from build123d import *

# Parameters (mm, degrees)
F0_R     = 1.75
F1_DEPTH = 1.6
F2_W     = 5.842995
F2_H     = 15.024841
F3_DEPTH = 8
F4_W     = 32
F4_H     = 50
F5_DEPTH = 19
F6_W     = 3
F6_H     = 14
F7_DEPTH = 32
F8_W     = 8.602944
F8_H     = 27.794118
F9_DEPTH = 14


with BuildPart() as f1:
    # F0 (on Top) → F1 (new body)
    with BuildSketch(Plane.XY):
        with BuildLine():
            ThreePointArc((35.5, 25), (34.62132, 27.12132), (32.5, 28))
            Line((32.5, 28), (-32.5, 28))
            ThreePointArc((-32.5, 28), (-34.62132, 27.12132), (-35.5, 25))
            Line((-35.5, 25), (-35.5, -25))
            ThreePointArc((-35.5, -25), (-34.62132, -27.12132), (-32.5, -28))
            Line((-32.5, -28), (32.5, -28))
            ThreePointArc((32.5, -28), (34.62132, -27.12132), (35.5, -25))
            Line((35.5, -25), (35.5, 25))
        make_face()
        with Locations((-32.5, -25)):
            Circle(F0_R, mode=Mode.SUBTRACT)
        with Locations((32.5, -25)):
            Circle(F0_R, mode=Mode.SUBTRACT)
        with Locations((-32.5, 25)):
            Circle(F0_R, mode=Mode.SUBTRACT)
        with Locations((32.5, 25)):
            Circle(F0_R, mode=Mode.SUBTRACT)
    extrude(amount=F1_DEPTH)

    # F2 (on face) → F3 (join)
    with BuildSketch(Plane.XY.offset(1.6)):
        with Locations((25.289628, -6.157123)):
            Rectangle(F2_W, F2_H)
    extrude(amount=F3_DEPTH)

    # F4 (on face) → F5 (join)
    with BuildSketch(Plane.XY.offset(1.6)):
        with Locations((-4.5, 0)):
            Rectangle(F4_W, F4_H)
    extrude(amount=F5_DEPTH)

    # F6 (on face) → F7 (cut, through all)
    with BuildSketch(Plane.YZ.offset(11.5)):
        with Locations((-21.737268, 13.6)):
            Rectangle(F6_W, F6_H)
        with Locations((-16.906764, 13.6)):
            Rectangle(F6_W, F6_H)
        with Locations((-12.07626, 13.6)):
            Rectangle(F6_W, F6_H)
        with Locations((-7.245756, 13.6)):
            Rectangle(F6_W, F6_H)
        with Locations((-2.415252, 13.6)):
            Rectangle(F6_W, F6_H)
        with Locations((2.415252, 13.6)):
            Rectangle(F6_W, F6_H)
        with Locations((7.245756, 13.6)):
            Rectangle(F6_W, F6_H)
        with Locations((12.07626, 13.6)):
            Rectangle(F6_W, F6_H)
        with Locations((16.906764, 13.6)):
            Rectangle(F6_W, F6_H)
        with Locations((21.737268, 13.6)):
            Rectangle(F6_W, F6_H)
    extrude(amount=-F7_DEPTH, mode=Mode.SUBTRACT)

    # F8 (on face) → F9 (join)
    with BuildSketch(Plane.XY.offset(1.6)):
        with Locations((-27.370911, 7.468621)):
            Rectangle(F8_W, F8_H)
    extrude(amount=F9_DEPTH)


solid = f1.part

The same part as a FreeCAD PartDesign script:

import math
import FreeCAD as App
import Part
import Sketcher

V = App.Vector
Q = App.Units.Quantity

doc = App.newDocument("Part")
body = doc.addObject("PartDesign::Body", "Body")

sketch1 = doc.addObject("Sketcher::SketchObject", "Sketch")
body.addObject(sketch1)
sketch1.AttachmentSupport = (doc.XY_Plane, [""])
sketch1.MapMode = "FlatFace"
sketch1.addGeometry([
    Part.ArcOfCircle(Part.Circle(V(32.5, 25, 0), V(0, 0, 1), 3), math.radians(0), math.radians(90)),
    Part.LineSegment(V(32.5, 28, 0), V(-32.5, 28, 0)),
    Part.ArcOfCircle(Part.Circle(V(-32.5, 25, 0), V(0, 0, 1), 3), math.radians(90), math.radians(180)),
    Part.LineSegment(V(-35.5, 25, 0), V(-35.5, -25, 0)),
    Part.ArcOfCircle(Part.Circle(V(-32.5, -25, 0), V(0, 0, 1), 3), math.radians(-180), math.radians(-90)),
    Part.LineSegment(V(-32.5, -28, 0), V(32.5, -28, 0)),
    Part.ArcOfCircle(Part.Circle(V(32.5, -25, 0), V(0, 0, 1), 3), math.radians(-90), math.radians(0)),
    Part.LineSegment(V(35.5, -25, 0), V(35.5, 25, 0)),
    Part.Circle(V(-32.5, -25, 0), V(0, 0, 1), 1.8),
    Part.Circle(V(32.5, -25, 0), V(0, 0, 1), 1.8),
    Part.Circle(V(-32.5, 25, 0), V(0, 0, 1), 1.8),
    Part.Circle(V(32.5, 25, 0), V(0, 0, 1), 1.8),
], False)
sketch1.addConstraint([
    Sketcher.Constraint("Tangent", 0, 2, 1, 1),
    Sketcher.Constraint("Tangent", 1, 2, 2, 1),
    Sketcher.Constraint("Tangent", 2, 2, 3, 1),
    Sketcher.Constraint("Tangent", 3, 2, 4, 1),
    Sketcher.Constraint("Tangent", 4, 2, 5, 1),
    Sketcher.Constraint("Tangent", 5, 2, 6, 1),
    Sketcher.Constraint("Tangent", 6, 2, 7, 1),
    Sketcher.Constraint("Tangent", 7, 2, 0, 1),
    Sketcher.Constraint("Horizontal", 1),
    Sketcher.Constraint("Vertical", 3),
    Sketcher.Constraint("Horizontal", 5),
    Sketcher.Constraint("Vertical", 7),
    Sketcher.Constraint("Coincident", 8, 3, 4, 3),
    Sketcher.Constraint("Coincident", 9, 3, 6, 3),
    Sketcher.Constraint("Coincident", 10, 3, 2, 3),
    Sketcher.Constraint("Coincident", 11, 3, 0, 3),
    Sketcher.Constraint("Equal", 0, 2),
    Sketcher.Constraint("Equal", 2, 4),
    Sketcher.Constraint("Equal", 4, 6),
    Sketcher.Constraint("Equal", 8, 9),
    Sketcher.Constraint("Equal", 9, 10),
    Sketcher.Constraint("Equal", 10, 11),
    Sketcher.Constraint("Symmetric", 0, 3, 4, 3, -1, 1),
    Sketcher.Constraint("Radius", 0, Q("3.000001 mm")),
    Sketcher.Constraint("Diameter", 8, Q("3.5 mm")),
    Sketcher.Constraint("DistanceX", 1, 2, 1, 1, Q("65 mm")),
    Sketcher.Constraint("DistanceY", 3, 2, 3, 1, Q("50 mm")),
])
pad1 = doc.addObject("PartDesign::Pad", "Pad")
body.addObject(pad1)
pad1.Profile = sketch1
pad1.Length = 1.6

sketch2 = doc.addObject("Sketcher::SketchObject", "Sketch001")
body.addObject(sketch2)
sketch2.AttachmentSupport = (doc.XY_Plane, [""])
sketch2.MapMode = "FlatFace"
sketch2.AttachmentOffset = App.Placement(V(0, 0, 1.6), App.Rotation())
sketch2.addGeometry([
    Part.LineSegment(V(22, 1, 0), V(22, -14, 0)),
    Part.LineSegment(V(22, -14, 0), V(28, -14, 0)),
    Part.LineSegment(V(28, -14, 0), V(28, 1, 0)),
    Part.LineSegment(V(28, 1, 0), V(22, 1, 0)),
], False)
sketch2.addConstraint([
    Sketcher.Constraint("Coincident", 0, 2, 1, 1),
    Sketcher.Constraint("Coincident", 1, 2, 2, 1),
    Sketcher.Constraint("Coincident", 2, 2, 3, 1),
    Sketcher.Constraint("Coincident", 3, 2, 0, 1),
    Sketcher.Constraint("Vertical", 0),
    Sketcher.Constraint("Horizontal", 1),
    Sketcher.Constraint("Vertical", 2),
    Sketcher.Constraint("Horizontal", 3),
    Sketcher.Constraint("DistanceY", 0, 2, 0, 1, Q("15.024841 mm")),
    Sketcher.Constraint("DistanceX", 1, 1, 1, 2, Q("5.842995 mm")),
    Sketcher.Constraint("DistanceX", -1, 1, 0, 2, Q("22.36813 mm")),
    Sketcher.Constraint("DistanceY", 0, 2, -1, 1, Q("13.669543 mm")),
])
pad2 = doc.addObject("PartDesign::Pad", "Pad001")
body.addObject(pad2)
pad2.Profile = sketch2
pad2.Length = 8

sketch3 = doc.addObject("Sketcher::SketchObject", "Sketch002")
body.addObject(sketch3)
sketch3.AttachmentSupport = (doc.XY_Plane, [""])
sketch3.MapMode = "FlatFace"
sketch3.AttachmentOffset = App.Placement(V(0, 0, 1.6), App.Rotation())
sketch3.addGeometry([
    Part.LineSegment(V(-20, 25, 0), V(-20, -25, 0)),
    Part.LineSegment(V(-20, -25, 0), V(12, -25, 0)),
    Part.LineSegment(V(12, -25, 0), V(12, 25, 0)),
    Part.LineSegment(V(12, 25, 0), V(-20, 25, 0)),
], False)
sketch3.addConstraint([
    Sketcher.Constraint("Coincident", 0, 2, 1, 1),
    Sketcher.Constraint("Coincident", 1, 2, 2, 1),
    Sketcher.Constraint("Coincident", 2, 2, 3, 1),
    Sketcher.Constraint("Coincident", 3, 2, 0, 1),
    Sketcher.Constraint("Vertical", 0),
    Sketcher.Constraint("Horizontal", 1),
    Sketcher.Constraint("Vertical", 2),
    Sketcher.Constraint("Horizontal", 3),
    Sketcher.Constraint("DistanceX", 1, 1, 1, 2, Q("32 mm")),
    Sketcher.Constraint("DistanceY", 0, 2, 0, 1, Q("50 mm")),
    Sketcher.Constraint("DistanceY", 0, 2, -1, 1, Q("25 mm")),
    Sketcher.Constraint("DistanceX", 0, 2, -1, 1, Q("20.5 mm")),
])
pad3 = doc.addObject("PartDesign::Pad", "Pad002")
body.addObject(pad3)
pad3.Profile = sketch3
pad3.Length = 19

sketch4 = doc.addObject("Sketcher::SketchObject", "Sketch003")
body.addObject(sketch4)
sketch4.AttachmentSupport = (doc.YZ_Plane, [""])
sketch4.MapMode = "FlatFace"
sketch4.AttachmentOffset = App.Placement(V(0, 0, 11.5), App.Rotation())
sketch4.addGeometry([
    Part.LineSegment(V(-23.2, 20.6, 0), V(-23.2, 6.6, 0)),
    Part.LineSegment(V(-23.2, 6.6, 0), V(-20.2, 6.6, 0)),
    Part.LineSegment(V(-20.2, 6.6, 0), V(-20.2, 20.6, 0)),
    Part.LineSegment(V(-20.2, 20.6, 0), V(-23.2, 20.6, 0)),
    Part.LineSegment(V(-18.4, 20.6, 0), V(-18.4, 6.6, 0)),
    Part.LineSegment(V(-18.4, 6.6, 0), V(-15.4, 6.6, 0)),
    Part.LineSegment(V(-15.4, 6.6, 0), V(-15.4, 20.6, 0)),
    Part.LineSegment(V(-15.4, 20.6, 0), V(-18.4, 20.6, 0)),
    Part.LineSegment(V(-13.6, 20.6, 0), V(-13.6, 6.6, 0)),
    Part.LineSegment(V(-13.6, 6.6, 0), V(-10.6, 6.6, 0)),
    Part.LineSegment(V(-10.6, 6.6, 0), V(-10.6, 20.6, 0)),
    Part.LineSegment(V(-10.6, 20.6, 0), V(-13.6, 20.6, 0)),
    Part.LineSegment(V(-8.7, 20.6, 0), V(-8.7, 6.6, 0)),
    Part.LineSegment(V(-8.7, 6.6, 0), V(-5.7, 6.6, 0)),
    Part.LineSegment(V(-5.7, 6.6, 0), V(-5.7, 20.6, 0)),
    Part.LineSegment(V(-5.7, 20.6, 0), V(-8.7, 20.6, 0)),
    Part.LineSegment(V(-3.9, 20.6, 0), V(-3.9, 6.6, 0)),
    Part.LineSegment(V(-3.9, 6.6, 0), V(-0.9, 6.6, 0)),
    Part.LineSegment(V(-0.9, 6.6, 0), V(-0.9, 20.6, 0)),
    Part.LineSegment(V(-0.9, 20.6, 0), V(-3.9, 20.6, 0)),
    Part.LineSegment(V(0.9, 20.6, 0), V(0.9, 6.6, 0)),
    Part.LineSegment(V(0.9, 6.6, 0), V(3.9, 6.6, 0)),
    Part.LineSegment(V(3.9, 6.6, 0), V(3.9, 20.6, 0)),
    Part.LineSegment(V(3.9, 20.6, 0), V(0.9, 20.6, 0)),
    Part.LineSegment(V(5.7, 20.6, 0), V(5.7, 6.6, 0)),
    Part.LineSegment(V(5.7, 6.6, 0), V(8.7, 6.6, 0)),
    Part.LineSegment(V(8.7, 6.6, 0), V(8.7, 20.6, 0)),
    Part.LineSegment(V(8.7, 20.6, 0), V(5.7, 20.6, 0)),
    Part.LineSegment(V(10.6, 20.6, 0), V(10.6, 6.6, 0)),
    Part.LineSegment(V(10.6, 6.6, 0), V(13.6, 6.6, 0)),
    Part.LineSegment(V(13.6, 6.6, 0), V(13.6, 20.6, 0)),
    Part.LineSegment(V(13.6, 20.6, 0), V(10.6, 20.6, 0)),
    Part.LineSegment(V(15.4, 20.6, 0), V(15.4, 6.6, 0)),
    Part.LineSegment(V(15.4, 6.6, 0), V(18.4, 6.6, 0)),
    Part.LineSegment(V(18.4, 6.6, 0), V(18.4, 20.6, 0)),
    Part.LineSegment(V(18.4, 20.6, 0), V(15.4, 20.6, 0)),
    Part.LineSegment(V(20.2, 20.6, 0), V(20.2, 6.6, 0)),
    Part.LineSegment(V(20.2, 6.6, 0), V(23.2, 6.6, 0)),
    Part.LineSegment(V(23.2, 6.6, 0), V(23.2, 20.6, 0)),
    Part.LineSegment(V(23.2, 20.6, 0), V(20.2, 20.6, 0)),
], False)
sketch4.addConstraint([
    Sketcher.Constraint("Coincident", 0, 2, 1, 1),
    Sketcher.Constraint("Coincident", 1, 2, 2, 1),
    Sketcher.Constraint("Coincident", 2, 2, 3, 1),
    Sketcher.Constraint("Coincident", 3, 2, 0, 1),
    Sketcher.Constraint("Coincident", 4, 2, 5, 1),
    Sketcher.Constraint("Coincident", 5, 2, 6, 1),
    Sketcher.Constraint("Coincident", 6, 2, 7, 1),
    Sketcher.Constraint("Coincident", 7, 2, 4, 1),
    Sketcher.Constraint("Coincident", 8, 2, 9, 1),
    Sketcher.Constraint("Coincident", 9, 2, 10, 1),
    Sketcher.Constraint("Coincident", 10, 2, 11, 1),
    Sketcher.Constraint("Coincident", 11, 2, 8, 1),
    Sketcher.Constraint("Coincident", 12, 2, 13, 1),
    Sketcher.Constraint("Coincident", 13, 2, 14, 1),
    Sketcher.Constraint("Coincident", 14, 2, 15, 1),
    Sketcher.Constraint("Coincident", 15, 2, 12, 1),
    Sketcher.Constraint("Coincident", 16, 2, 17, 1),
    Sketcher.Constraint("Coincident", 17, 2, 18, 1),
    Sketcher.Constraint("Coincident", 18, 2, 19, 1),
    Sketcher.Constraint("Coincident", 19, 2, 16, 1),
    Sketcher.Constraint("Coincident", 20, 2, 21, 1),
    Sketcher.Constraint("Coincident", 21, 2, 22, 1),
    Sketcher.Constraint("Coincident", 22, 2, 23, 1),
    Sketcher.Constraint("Coincident", 23, 2, 20, 1),
    Sketcher.Constraint("Coincident", 24, 2, 25, 1),
    Sketcher.Constraint("Coincident", 25, 2, 26, 1),
    Sketcher.Constraint("Coincident", 26, 2, 27, 1),
    Sketcher.Constraint("Coincident", 27, 2, 24, 1),
    Sketcher.Constraint("Coincident", 28, 2, 29, 1),
    Sketcher.Constraint("Coincident", 29, 2, 30, 1),
    Sketcher.Constraint("Coincident", 30, 2, 31, 1),
    Sketcher.Constraint("Coincident", 31, 2, 28, 1),
    Sketcher.Constraint("Coincident", 32, 2, 33, 1),
    Sketcher.Constraint("Coincident", 33, 2, 34, 1),
    Sketcher.Constraint("Coincident", 34, 2, 35, 1),
    Sketcher.Constraint("Coincident", 35, 2, 32, 1),
    Sketcher.Constraint("Coincident", 36, 2, 37, 1),
    Sketcher.Constraint("Coincident", 37, 2, 38, 1),
    Sketcher.Constraint("Coincident", 38, 2, 39, 1),
    Sketcher.Constraint("Coincident", 39, 2, 36, 1),
    Sketcher.Constraint("Vertical", 0),
    Sketcher.Constraint("Horizontal", 1),
    Sketcher.Constraint("Vertical", 2),
    Sketcher.Constraint("Horizontal", 3),
    Sketcher.Constraint("Vertical", 4),
    Sketcher.Constraint("Horizontal", 5),
    Sketcher.Constraint("Vertical", 6),
    Sketcher.Constraint("Horizontal", 7),
    Sketcher.Constraint("Vertical", 8),
    Sketcher.Constraint("Horizontal", 9),
    Sketcher.Constraint("Vertical", 10),
    Sketcher.Constraint("Horizontal", 11),
    Sketcher.Constraint("Vertical", 12),
    Sketcher.Constraint("Horizontal", 13),
    Sketcher.Constraint("Vertical", 14),
    Sketcher.Constraint("Horizontal", 15),
    Sketcher.Constraint("Vertical", 16),
    Sketcher.Constraint("Horizontal", 17),
    Sketcher.Constraint("Vertical", 18),
    Sketcher.Constraint("Horizontal", 19),
    Sketcher.Constraint("Vertical", 20),
    Sketcher.Constraint("Horizontal", 21),
    Sketcher.Constraint("Vertical", 22),
    Sketcher.Constraint("Horizontal", 23),
    Sketcher.Constraint("Vertical", 24),
    Sketcher.Constraint("Horizontal", 25),
    Sketcher.Constraint("Vertical", 26),
    Sketcher.Constraint("Horizontal", 27),
    Sketcher.Constraint("Vertical", 28),
    Sketcher.Constraint("Horizontal", 29),
    Sketcher.Constraint("Vertical", 30),
    Sketcher.Constraint("Horizontal", 31),
    Sketcher.Constraint("Vertical", 32),
    Sketcher.Constraint("Horizontal", 33),
    Sketcher.Constraint("Vertical", 34),
    Sketcher.Constraint("Horizontal", 35),
    Sketcher.Constraint("Vertical", 36),
    Sketcher.Constraint("Horizontal", 37),
    Sketcher.Constraint("Vertical", 38),
    Sketcher.Constraint("Horizontal", 39),
    Sketcher.Constraint("Symmetric", 17, 2, 20, 2, -2),
    Sketcher.Constraint("Symmetric", 19, 2, 22, 2, -2),
    Sketcher.Constraint("Symmetric", 13, 2, 24, 2, -2),
    Sketcher.Constraint("Symmetric", 15, 2, 26, 2, -2),
    Sketcher.Constraint("Symmetric", 9, 2, 28, 2, -2),
    Sketcher.Constraint("Symmetric", 11, 2, 30, 2, -2),
    Sketcher.Constraint("Symmetric", 5, 2, 32, 2, -2),
    Sketcher.Constraint("Symmetric", 7, 2, 34, 2, -2),
    Sketcher.Constraint("Symmetric", 1, 2, 36, 2, -2),
    Sketcher.Constraint("Symmetric", 3, 2, 38, 2, -2),
    Sketcher.Constraint("Horizontal", 1, 2, 4, 2),
    Sketcher.Constraint("Horizontal", 3, 2, 6, 2),
    Sketcher.Constraint("Horizontal", 5, 2, 8, 2),
    Sketcher.Constraint("Horizontal", 7, 2, 10, 2),
    Sketcher.Constraint("Horizontal", 9, 2, 12, 2),
    Sketcher.Constraint("Horizontal", 11, 2, 14, 2),
    Sketcher.Constraint("Horizontal", 13, 2, 16, 2),
    Sketcher.Constraint("Horizontal", 15, 2, 18, 2),
    Sketcher.Constraint("Equal", 3, 5),
    Sketcher.Constraint("Equal", 7, 9),
    Sketcher.Constraint("Equal", 11, 13),
    Sketcher.Constraint("Equal", 15, 17),
    Sketcher.Constraint("DistanceX", 1, 1, 1, 2, Q("3 mm")),
    Sketcher.Constraint("DistanceY", 0, 2, 0, 1, Q("14 mm")),
    Sketcher.Constraint("DistanceY", -1, 1, 0, 2, Q("6.6 mm")),
    Sketcher.Constraint("DistanceX", 0, 2, -1, 1, Q("23.237268 mm")),
    Sketcher.Constraint("DistanceX", 8, 2, -1, 1, Q("13.57626 mm")),
    Sketcher.Constraint("DistanceX", 17, 2, -1, 1, Q("0.915252 mm")),
    Sketcher.Constraint("DistanceX", 5, 2, 12, 2, Q("6.661008 mm")),
    Sketcher.Constraint("DistanceX", 12, 2, 20, 2, Q("9.661008 mm")),
])
pocket1 = doc.addObject("PartDesign::Pocket", "Pocket")
body.addObject(pocket1)
pocket1.Profile = sketch4
pocket1.Type = "ThroughAll"

sketch5 = doc.addObject("Sketcher::SketchObject", "Sketch004")
body.addObject(sketch5)
sketch5.AttachmentSupport = (doc.XY_Plane, [""])
sketch5.MapMode = "FlatFace"
sketch5.AttachmentOffset = App.Placement(V(0, 0, 1.6), App.Rotation())
sketch5.addGeometry([
    Part.LineSegment(V(-32, 21, 0), V(-32, -6, 0)),
    Part.LineSegment(V(-32, -6, 0), V(-23, -6, 0)),
    Part.LineSegment(V(-23, -6, 0), V(-23, 21, 0)),
    Part.LineSegment(V(-23, 21, 0), V(-32, 21, 0)),
], False)
sketch5.addConstraint([
    Sketcher.Constraint("Coincident", 0, 2, 1, 1),
    Sketcher.Constraint("Coincident", 1, 2, 2, 1),
    Sketcher.Constraint("Coincident", 2, 2, 3, 1),
    Sketcher.Constraint("Coincident", 3, 2, 0, 1),
    Sketcher.Constraint("Vertical", 0),
    Sketcher.Constraint("Horizontal", 1),
    Sketcher.Constraint("Vertical", 2),
    Sketcher.Constraint("Horizontal", 3),
    Sketcher.Constraint("DistanceY", 0, 2, 0, 1, Q("27.794118 mm")),
    Sketcher.Constraint("DistanceX", 1, 1, 1, 2, Q("8.602944 mm")),
    Sketcher.Constraint("DistanceX", 1, 2, -1, 1, Q("23.069439 mm")),
    Sketcher.Constraint("DistanceY", -1, 1, 2, 2, Q("21.36568 mm")),
])
pad4 = doc.addObject("PartDesign::Pad", "Pad003")
body.addObject(pad4)
pad4.Profile = sketch5
pad4.Length = 14

doc.recompute()
